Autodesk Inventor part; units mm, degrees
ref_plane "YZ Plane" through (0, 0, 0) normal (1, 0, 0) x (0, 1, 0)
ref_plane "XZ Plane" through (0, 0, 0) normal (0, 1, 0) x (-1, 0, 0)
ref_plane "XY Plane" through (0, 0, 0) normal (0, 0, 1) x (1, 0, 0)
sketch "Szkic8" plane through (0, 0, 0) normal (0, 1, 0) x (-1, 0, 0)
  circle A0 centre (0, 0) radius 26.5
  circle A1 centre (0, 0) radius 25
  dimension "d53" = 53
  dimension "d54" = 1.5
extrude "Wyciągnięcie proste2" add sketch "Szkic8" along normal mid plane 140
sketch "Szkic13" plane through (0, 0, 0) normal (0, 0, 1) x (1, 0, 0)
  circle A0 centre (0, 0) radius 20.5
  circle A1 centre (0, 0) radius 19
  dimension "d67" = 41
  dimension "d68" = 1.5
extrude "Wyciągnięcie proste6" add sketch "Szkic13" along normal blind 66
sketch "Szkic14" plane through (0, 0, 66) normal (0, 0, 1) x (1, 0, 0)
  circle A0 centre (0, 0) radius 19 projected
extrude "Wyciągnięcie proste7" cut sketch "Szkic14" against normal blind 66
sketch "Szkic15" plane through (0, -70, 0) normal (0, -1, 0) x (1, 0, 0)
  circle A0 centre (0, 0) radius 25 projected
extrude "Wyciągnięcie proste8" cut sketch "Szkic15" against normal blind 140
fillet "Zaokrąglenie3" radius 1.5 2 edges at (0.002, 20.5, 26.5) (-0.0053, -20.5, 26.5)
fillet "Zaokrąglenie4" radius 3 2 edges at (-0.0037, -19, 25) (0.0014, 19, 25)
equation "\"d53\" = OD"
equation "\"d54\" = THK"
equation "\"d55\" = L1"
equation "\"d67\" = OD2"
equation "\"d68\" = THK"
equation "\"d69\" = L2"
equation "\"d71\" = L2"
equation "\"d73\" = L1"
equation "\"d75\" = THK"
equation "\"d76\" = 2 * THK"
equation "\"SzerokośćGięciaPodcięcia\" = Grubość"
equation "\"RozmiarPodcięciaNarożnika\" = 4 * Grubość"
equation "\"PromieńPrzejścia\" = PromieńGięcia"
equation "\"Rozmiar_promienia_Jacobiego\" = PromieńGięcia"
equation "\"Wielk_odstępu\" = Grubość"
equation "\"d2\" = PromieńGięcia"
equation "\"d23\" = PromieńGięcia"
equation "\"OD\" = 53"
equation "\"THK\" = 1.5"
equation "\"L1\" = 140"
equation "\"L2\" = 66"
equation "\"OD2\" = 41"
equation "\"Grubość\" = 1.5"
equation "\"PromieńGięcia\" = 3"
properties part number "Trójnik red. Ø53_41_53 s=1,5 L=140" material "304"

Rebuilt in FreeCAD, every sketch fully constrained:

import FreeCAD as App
import Part
import Sketcher
from FreeCAD import Vector


def edges_at(feature, points):
    """Names of the edges that pass closest to the given points."""
    edges = feature.Shape.Edges
    near = lambda p: min(range(len(edges)), key=lambda i: edges[i].distToShape(Part.Vertex(*p))[0])
    return sorted({f"Edge{near(p) + 1}" for p in points})

doc = App.newDocument("Part")
params = doc.addObject("Spreadsheet::Sheet", "Params")
for row, (alias, value) in enumerate([
    ("sketch1_diameter", "53 mm"),
    ("sketch1_diameter2", "50 mm"),
    ("pad1_length", "140 mm"),
    ("sketch2_diameter", "41 mm"),
    ("sketch2_diameter2", "38 mm"),
    ("pad2_length", "66 mm"),
    ("sketch3_diameter", "38 mm"),
    ("pocket1_length", "66 mm"),
    ("sketch4_diameter", "50 mm"),
    ("pocket2_length", "140 mm"),
    ("fillet_radius", "1.5 mm"),
    ("fillet2_radius", "3 mm"),
], start=1):
    params.set(f"A{row}", alias)
    params.set(f"B{row}", "=" + value)
    params.setAlias(f"B{row}", alias)

body = doc.addObject("PartDesign::Body", "Body")

# Sketch on XZ plane
sketch1 = body.newObject("Sketcher::SketchObject", "Sketch")
sketch1.AttachmentSupport = (doc.getObject("XZ_Plane"), [""])
sketch1.MapMode = "FlatFace"
sketch1.addGeometry([
    Part.Circle(Vector(0, 0, 0), Vector(0, 0, 1), 26.5),
    Part.Circle(Vector(0, 0, 0), Vector(0, 0, 1), 25),
], False)
sketch1.addConstraint([
    Sketcher.Constraint("Coincident", 0, 3, -1, 1),
    Sketcher.Constraint("Coincident", 1, 3, -1, 1),
    Sketcher.Constraint("Diameter", 0, 53.0),
    Sketcher.Constraint("Diameter", 1, 50.0),
])
sketch1.setExpression("Constraints[2]", "Params.sketch1_diameter")
sketch1.setExpression("Constraints[3]", "Params.sketch1_diameter2")
pad1 = body.newObject("PartDesign::Pad", "Pad")
pad1.Profile = sketch1
pad1.setExpression("Length", "Params.pad1_length")
pad1.Midplane = True

# Sketch on XY plane
sketch2 = body.newObject("Sketcher::SketchObject", "Sketch001")
sketch2.AttachmentSupport = (doc.getObject("XY_Plane"), [""])
sketch2.MapMode = "FlatFace"
sketch2.addGeometry([
    Part.Circle(Vector(0, 0, 0), Vector(0, 0, 1), 20.5),
    Part.Circle(Vector(0, 0, 0), Vector(0, 0, 1), 19),
], False)
sketch2.addConstraint([
    Sketcher.Constraint("Coincident", 0, 3, -1, 1),
    Sketcher.Constraint("Coincident", 1, 3, -1, 1),
    Sketcher.Constraint("Diameter", 0, 41.0),
    Sketcher.Constraint("Diameter", 1, 38.0),
])
sketch2.setExpression("Constraints[2]", "Params.sketch2_diameter")
sketch2.setExpression("Constraints[3]", "Params.sketch2_diameter2")
pad2 = body.newObject("PartDesign::Pad", "Pad001")
pad2.Profile = sketch2
pad2.setExpression("Length", "Params.pad2_length")

# Sketch on XY plane
sketch3 = body.newObject("Sketcher::SketchObject", "Sketch002")
sketch3.AttachmentSupport = (doc.getObject("XY_Plane"), [""])
sketch3.MapMode = "FlatFace"
sketch3.AttachmentOffset = App.Placement(Vector(0, 0, 66), App.Rotation())
sketch3.addGeometry(Part.Circle(Vector(0, 0, 0), Vector(0, 0, 1), 19), False)
sketch3.addConstraint([
    Sketcher.Constraint("Coincident", 0, 3, -1, 1),
    Sketcher.Constraint("Diameter", 0, 38.0),
])
sketch3.setExpression("Constraints[1]", "Params.sketch3_diameter")
pocket1 = body.newObject("PartDesign::Pocket", "Pocket")
pocket1.Profile = sketch3
pocket1.setExpression("Length", "Params.pocket1_length")

# Sketch on XZ plane
sketch4 = body.newObject("Sketcher::SketchObject", "Sketch003")
sketch4.AttachmentSupport = (doc.getObject("XZ_Plane"), [""])
sketch4.MapMode = "FlatFace"
sketch4.AttachmentOffset = App.Placement(Vector(0, 0, 70), App.Rotation())
sketch4.addGeometry(Part.Circle(Vector(0, 0, 0), Vector(0, 0, 1), 25), False)
sketch4.addConstraint([
    Sketcher.Constraint("Coincident", 0, 3, -1, 1),
    Sketcher.Constraint("Diameter", 0, 50.0),
])
sketch4.setExpression("Constraints[1]", "Params.sketch4_diameter")
pocket2 = body.newObject("PartDesign::Pocket", "Pocket001")
pocket2.Profile = sketch4
pocket2.setExpression("Length", "Params.pocket2_length")
doc.recompute()

fillet = body.newObject("PartDesign::Fillet", "Fillet")
fillet.Base = (pocket2, edges_at(pocket2, [(0.002, 20.5, 26.5), (-0.005, -20.5, 26.5)]))
fillet.setExpression("Radius", "Params.fillet_radius")
doc.recompute()

fillet2 = body.newObject("PartDesign::Fillet", "Fillet001")
fillet2.Base = (fillet, edges_at(fillet, [(-0.004, -19, 25), (0.001, 19, 25)]))
fillet2.setExpression("Radius", "Params.fillet2_radius")

doc.recompute()
